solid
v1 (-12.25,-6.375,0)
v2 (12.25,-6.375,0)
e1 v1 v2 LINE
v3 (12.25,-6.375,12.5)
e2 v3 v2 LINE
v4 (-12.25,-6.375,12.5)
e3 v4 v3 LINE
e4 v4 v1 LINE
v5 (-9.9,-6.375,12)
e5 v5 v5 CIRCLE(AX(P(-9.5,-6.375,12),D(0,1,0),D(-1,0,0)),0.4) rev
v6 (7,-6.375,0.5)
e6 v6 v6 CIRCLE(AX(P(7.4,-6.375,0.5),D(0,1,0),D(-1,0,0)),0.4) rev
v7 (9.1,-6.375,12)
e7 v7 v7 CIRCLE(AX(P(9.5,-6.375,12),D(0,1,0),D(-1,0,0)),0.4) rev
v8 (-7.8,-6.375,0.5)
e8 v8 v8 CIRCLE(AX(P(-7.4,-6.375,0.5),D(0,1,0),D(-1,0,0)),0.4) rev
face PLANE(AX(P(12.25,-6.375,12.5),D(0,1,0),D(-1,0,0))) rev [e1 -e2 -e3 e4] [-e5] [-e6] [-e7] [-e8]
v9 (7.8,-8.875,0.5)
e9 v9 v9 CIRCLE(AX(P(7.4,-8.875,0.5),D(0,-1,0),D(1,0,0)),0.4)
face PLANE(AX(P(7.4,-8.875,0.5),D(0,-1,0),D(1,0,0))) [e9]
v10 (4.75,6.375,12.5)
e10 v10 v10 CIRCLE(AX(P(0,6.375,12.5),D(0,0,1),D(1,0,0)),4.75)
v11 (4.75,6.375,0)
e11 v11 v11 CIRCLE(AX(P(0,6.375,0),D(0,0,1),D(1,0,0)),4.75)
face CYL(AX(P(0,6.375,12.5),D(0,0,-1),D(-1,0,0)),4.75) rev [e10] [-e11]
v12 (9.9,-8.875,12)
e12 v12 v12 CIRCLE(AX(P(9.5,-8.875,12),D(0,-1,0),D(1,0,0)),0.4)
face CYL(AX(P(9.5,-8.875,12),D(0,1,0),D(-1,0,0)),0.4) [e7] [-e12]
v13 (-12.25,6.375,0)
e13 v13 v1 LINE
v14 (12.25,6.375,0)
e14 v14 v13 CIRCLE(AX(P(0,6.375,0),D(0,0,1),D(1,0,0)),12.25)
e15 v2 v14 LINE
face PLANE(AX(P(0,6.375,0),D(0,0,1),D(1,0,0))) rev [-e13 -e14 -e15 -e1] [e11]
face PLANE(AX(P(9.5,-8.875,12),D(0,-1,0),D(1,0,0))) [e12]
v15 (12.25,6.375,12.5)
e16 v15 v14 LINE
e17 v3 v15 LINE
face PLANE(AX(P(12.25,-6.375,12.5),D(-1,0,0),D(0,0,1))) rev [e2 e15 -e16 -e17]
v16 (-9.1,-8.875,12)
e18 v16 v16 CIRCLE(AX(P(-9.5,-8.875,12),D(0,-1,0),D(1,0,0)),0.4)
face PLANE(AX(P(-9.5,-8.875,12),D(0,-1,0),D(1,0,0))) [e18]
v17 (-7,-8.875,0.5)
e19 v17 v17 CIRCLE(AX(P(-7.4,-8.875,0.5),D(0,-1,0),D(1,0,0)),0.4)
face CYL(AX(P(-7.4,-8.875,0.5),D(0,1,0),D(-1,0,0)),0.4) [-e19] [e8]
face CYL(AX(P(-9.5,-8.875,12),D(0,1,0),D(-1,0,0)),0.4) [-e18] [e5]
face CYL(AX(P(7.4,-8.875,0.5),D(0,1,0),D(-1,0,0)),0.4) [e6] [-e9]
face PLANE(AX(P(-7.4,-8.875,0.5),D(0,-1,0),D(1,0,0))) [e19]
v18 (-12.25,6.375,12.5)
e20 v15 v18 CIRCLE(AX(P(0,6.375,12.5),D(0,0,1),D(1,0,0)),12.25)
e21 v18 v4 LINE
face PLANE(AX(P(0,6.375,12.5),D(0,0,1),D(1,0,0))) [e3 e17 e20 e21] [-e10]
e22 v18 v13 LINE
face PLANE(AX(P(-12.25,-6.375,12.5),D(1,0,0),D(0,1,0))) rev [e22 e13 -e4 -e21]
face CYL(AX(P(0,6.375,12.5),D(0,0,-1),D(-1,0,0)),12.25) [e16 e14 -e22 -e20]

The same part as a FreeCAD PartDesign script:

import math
import FreeCAD as App
import Part
import Sketcher

doc = App.newDocument("Part")
params = doc.addObject("Spreadsheet::Sheet", "Params")
for row, (alias, value) in enumerate([
    ("sketch1_diameter", "9.5 mm"),
    ("sketch1_radius", "12.25 mm"),
    ("sketch1_height", "12.75 mm"),
    ("pad1_length", "12.5 mm"),
    ("sketch2_diameter", "0.8 mm"),
    ("pad2_length", "2.5 mm"),
], start=1):
    params.set(f"A{row}", alias)
    params.set(f"B{row}", "=" + value)
    params.setAlias(f"B{row}", alias)

body = doc.addObject("PartDesign::Body", "Body")

# Sketch on XY plane
sketch1 = doc.addObject("Sketcher::SketchObject", "Sketch")
body.addObject(sketch1)
sketch1.AttachmentSupport = (doc.XY_Plane, [""])
sketch1.MapMode = "FlatFace"
sketch1.addGeometry([
    Part.LineSegment(App.Vector(-12.2, -6.4, 0), App.Vector(12.2, -6.4, 0)),  # 0
    Part.LineSegment(App.Vector(12.2, -6.4, 0), App.Vector(12.2, 6.4, 0)),  # 1
    Part.ArcOfCircle(Part.Circle(App.Vector(0, 6.4, 0), App.Vector(0, 0, 1), 12.2), math.radians(0), math.radians(180)),  # 2
    Part.LineSegment(App.Vector(-12.2, 6.4, 0), App.Vector(-12.2, -6.4, 0)),  # 3
    Part.Circle(App.Vector(0, 6.4, 0), App.Vector(0, 0, 1), 4.8),  # 4
], False)
sketch1.addConstraint([
    Sketcher.Constraint("Coincident", 0, 2, 1, 1),
    Sketcher.Constraint("Tangent", 1, 2, 2, 1),
    Sketcher.Constraint("Tangent", 2, 2, 3, 1),
    Sketcher.Constraint("Coincident", 3, 2, 0, 1),
    Sketcher.Constraint("Horizontal", 0),
    Sketcher.Constraint("Vertical", 1),
    Sketcher.Constraint("Vertical", 3),
    Sketcher.Constraint("Coincident", 4, 3, 2, 3),
    Sketcher.Constraint("Symmetric", 0, 2, 2, 2, -1, 1),
    Sketcher.Constraint("Diameter", 4, 9.5),
    Sketcher.Constraint("Radius", 2, 12.25),
    Sketcher.Constraint("DistanceY", 1, 1, 1, 2, 12.75),
])
sketch1.setExpression("Constraints[9]", "Params.sketch1_diameter")
sketch1.setExpression("Constraints[10]", "Params.sketch1_radius")
sketch1.setExpression("Constraints[11]", "Params.sketch1_height")
pad1 = doc.addObject("PartDesign::Pad", "Pad")
body.addObject(pad1)
pad1.Profile = sketch1
pad1.setExpression("Length", "Params.pad1_length")

# Sketch on XZ plane
sketch2 = doc.addObject("Sketcher::SketchObject", "Sketch001")
body.addObject(sketch2)
sketch2.AttachmentSupport = (doc.XZ_Plane, [""])
sketch2.MapMode = "FlatFace"
sketch2.AttachmentOffset = App.Placement(App.Vector(0, 0, 6.375), App.Rotation())
sketch2.addGeometry([
    Part.Circle(App.Vector(7.4, 0.5, 0), App.Vector(0, 0, 1), 0.4),
    Part.Circle(App.Vector(-7.4, 0.5, 0), App.Vector(0, 0, 1), 0.4),
    Part.Circle(App.Vector(9.5, 12, 0), App.Vector(0, 0, 1), 0.4),
    Part.Circle(App.Vector(-9.5, 12, 0), App.Vector(0, 0, 1), 0.4),
], False)
sketch2.addConstraint([
    Sketcher.Constraint("Equal", 0, 1),
    Sketcher.Constraint("Equal", 1, 2),
    Sketcher.Constraint("Equal", 2, 3),
    Sketcher.Constraint("Symmetric", 0, 3, 1, 3, -2),
    Sketcher.Constraint("Symmetric", 2, 3, 3, 3, -2),
    Sketcher.Constraint("Diameter", 0, 0.8),
    Sketcher.Constraint("DistanceY", -1, 1, 2, 3, 12.0),
    Sketcher.Constraint("DistanceX", 3, 3, 2, 3, 19.0),
    Sketcher.Constraint("DistanceX", -1, 1, 0, 3, 7.4),
    Sketcher.Constraint("DistanceY", -1, 1, 0, 3, 0.5),
])
sketch2.setExpression("Constraints[5]", "Params.sketch2_diameter")
pad2 = doc.addObject("PartDesign::Pad", "Pad001")
body.addObject(pad2)
pad2.Profile = sketch2
pad2.setExpression("Length", "Params.pad2_length")

doc.recompute()
